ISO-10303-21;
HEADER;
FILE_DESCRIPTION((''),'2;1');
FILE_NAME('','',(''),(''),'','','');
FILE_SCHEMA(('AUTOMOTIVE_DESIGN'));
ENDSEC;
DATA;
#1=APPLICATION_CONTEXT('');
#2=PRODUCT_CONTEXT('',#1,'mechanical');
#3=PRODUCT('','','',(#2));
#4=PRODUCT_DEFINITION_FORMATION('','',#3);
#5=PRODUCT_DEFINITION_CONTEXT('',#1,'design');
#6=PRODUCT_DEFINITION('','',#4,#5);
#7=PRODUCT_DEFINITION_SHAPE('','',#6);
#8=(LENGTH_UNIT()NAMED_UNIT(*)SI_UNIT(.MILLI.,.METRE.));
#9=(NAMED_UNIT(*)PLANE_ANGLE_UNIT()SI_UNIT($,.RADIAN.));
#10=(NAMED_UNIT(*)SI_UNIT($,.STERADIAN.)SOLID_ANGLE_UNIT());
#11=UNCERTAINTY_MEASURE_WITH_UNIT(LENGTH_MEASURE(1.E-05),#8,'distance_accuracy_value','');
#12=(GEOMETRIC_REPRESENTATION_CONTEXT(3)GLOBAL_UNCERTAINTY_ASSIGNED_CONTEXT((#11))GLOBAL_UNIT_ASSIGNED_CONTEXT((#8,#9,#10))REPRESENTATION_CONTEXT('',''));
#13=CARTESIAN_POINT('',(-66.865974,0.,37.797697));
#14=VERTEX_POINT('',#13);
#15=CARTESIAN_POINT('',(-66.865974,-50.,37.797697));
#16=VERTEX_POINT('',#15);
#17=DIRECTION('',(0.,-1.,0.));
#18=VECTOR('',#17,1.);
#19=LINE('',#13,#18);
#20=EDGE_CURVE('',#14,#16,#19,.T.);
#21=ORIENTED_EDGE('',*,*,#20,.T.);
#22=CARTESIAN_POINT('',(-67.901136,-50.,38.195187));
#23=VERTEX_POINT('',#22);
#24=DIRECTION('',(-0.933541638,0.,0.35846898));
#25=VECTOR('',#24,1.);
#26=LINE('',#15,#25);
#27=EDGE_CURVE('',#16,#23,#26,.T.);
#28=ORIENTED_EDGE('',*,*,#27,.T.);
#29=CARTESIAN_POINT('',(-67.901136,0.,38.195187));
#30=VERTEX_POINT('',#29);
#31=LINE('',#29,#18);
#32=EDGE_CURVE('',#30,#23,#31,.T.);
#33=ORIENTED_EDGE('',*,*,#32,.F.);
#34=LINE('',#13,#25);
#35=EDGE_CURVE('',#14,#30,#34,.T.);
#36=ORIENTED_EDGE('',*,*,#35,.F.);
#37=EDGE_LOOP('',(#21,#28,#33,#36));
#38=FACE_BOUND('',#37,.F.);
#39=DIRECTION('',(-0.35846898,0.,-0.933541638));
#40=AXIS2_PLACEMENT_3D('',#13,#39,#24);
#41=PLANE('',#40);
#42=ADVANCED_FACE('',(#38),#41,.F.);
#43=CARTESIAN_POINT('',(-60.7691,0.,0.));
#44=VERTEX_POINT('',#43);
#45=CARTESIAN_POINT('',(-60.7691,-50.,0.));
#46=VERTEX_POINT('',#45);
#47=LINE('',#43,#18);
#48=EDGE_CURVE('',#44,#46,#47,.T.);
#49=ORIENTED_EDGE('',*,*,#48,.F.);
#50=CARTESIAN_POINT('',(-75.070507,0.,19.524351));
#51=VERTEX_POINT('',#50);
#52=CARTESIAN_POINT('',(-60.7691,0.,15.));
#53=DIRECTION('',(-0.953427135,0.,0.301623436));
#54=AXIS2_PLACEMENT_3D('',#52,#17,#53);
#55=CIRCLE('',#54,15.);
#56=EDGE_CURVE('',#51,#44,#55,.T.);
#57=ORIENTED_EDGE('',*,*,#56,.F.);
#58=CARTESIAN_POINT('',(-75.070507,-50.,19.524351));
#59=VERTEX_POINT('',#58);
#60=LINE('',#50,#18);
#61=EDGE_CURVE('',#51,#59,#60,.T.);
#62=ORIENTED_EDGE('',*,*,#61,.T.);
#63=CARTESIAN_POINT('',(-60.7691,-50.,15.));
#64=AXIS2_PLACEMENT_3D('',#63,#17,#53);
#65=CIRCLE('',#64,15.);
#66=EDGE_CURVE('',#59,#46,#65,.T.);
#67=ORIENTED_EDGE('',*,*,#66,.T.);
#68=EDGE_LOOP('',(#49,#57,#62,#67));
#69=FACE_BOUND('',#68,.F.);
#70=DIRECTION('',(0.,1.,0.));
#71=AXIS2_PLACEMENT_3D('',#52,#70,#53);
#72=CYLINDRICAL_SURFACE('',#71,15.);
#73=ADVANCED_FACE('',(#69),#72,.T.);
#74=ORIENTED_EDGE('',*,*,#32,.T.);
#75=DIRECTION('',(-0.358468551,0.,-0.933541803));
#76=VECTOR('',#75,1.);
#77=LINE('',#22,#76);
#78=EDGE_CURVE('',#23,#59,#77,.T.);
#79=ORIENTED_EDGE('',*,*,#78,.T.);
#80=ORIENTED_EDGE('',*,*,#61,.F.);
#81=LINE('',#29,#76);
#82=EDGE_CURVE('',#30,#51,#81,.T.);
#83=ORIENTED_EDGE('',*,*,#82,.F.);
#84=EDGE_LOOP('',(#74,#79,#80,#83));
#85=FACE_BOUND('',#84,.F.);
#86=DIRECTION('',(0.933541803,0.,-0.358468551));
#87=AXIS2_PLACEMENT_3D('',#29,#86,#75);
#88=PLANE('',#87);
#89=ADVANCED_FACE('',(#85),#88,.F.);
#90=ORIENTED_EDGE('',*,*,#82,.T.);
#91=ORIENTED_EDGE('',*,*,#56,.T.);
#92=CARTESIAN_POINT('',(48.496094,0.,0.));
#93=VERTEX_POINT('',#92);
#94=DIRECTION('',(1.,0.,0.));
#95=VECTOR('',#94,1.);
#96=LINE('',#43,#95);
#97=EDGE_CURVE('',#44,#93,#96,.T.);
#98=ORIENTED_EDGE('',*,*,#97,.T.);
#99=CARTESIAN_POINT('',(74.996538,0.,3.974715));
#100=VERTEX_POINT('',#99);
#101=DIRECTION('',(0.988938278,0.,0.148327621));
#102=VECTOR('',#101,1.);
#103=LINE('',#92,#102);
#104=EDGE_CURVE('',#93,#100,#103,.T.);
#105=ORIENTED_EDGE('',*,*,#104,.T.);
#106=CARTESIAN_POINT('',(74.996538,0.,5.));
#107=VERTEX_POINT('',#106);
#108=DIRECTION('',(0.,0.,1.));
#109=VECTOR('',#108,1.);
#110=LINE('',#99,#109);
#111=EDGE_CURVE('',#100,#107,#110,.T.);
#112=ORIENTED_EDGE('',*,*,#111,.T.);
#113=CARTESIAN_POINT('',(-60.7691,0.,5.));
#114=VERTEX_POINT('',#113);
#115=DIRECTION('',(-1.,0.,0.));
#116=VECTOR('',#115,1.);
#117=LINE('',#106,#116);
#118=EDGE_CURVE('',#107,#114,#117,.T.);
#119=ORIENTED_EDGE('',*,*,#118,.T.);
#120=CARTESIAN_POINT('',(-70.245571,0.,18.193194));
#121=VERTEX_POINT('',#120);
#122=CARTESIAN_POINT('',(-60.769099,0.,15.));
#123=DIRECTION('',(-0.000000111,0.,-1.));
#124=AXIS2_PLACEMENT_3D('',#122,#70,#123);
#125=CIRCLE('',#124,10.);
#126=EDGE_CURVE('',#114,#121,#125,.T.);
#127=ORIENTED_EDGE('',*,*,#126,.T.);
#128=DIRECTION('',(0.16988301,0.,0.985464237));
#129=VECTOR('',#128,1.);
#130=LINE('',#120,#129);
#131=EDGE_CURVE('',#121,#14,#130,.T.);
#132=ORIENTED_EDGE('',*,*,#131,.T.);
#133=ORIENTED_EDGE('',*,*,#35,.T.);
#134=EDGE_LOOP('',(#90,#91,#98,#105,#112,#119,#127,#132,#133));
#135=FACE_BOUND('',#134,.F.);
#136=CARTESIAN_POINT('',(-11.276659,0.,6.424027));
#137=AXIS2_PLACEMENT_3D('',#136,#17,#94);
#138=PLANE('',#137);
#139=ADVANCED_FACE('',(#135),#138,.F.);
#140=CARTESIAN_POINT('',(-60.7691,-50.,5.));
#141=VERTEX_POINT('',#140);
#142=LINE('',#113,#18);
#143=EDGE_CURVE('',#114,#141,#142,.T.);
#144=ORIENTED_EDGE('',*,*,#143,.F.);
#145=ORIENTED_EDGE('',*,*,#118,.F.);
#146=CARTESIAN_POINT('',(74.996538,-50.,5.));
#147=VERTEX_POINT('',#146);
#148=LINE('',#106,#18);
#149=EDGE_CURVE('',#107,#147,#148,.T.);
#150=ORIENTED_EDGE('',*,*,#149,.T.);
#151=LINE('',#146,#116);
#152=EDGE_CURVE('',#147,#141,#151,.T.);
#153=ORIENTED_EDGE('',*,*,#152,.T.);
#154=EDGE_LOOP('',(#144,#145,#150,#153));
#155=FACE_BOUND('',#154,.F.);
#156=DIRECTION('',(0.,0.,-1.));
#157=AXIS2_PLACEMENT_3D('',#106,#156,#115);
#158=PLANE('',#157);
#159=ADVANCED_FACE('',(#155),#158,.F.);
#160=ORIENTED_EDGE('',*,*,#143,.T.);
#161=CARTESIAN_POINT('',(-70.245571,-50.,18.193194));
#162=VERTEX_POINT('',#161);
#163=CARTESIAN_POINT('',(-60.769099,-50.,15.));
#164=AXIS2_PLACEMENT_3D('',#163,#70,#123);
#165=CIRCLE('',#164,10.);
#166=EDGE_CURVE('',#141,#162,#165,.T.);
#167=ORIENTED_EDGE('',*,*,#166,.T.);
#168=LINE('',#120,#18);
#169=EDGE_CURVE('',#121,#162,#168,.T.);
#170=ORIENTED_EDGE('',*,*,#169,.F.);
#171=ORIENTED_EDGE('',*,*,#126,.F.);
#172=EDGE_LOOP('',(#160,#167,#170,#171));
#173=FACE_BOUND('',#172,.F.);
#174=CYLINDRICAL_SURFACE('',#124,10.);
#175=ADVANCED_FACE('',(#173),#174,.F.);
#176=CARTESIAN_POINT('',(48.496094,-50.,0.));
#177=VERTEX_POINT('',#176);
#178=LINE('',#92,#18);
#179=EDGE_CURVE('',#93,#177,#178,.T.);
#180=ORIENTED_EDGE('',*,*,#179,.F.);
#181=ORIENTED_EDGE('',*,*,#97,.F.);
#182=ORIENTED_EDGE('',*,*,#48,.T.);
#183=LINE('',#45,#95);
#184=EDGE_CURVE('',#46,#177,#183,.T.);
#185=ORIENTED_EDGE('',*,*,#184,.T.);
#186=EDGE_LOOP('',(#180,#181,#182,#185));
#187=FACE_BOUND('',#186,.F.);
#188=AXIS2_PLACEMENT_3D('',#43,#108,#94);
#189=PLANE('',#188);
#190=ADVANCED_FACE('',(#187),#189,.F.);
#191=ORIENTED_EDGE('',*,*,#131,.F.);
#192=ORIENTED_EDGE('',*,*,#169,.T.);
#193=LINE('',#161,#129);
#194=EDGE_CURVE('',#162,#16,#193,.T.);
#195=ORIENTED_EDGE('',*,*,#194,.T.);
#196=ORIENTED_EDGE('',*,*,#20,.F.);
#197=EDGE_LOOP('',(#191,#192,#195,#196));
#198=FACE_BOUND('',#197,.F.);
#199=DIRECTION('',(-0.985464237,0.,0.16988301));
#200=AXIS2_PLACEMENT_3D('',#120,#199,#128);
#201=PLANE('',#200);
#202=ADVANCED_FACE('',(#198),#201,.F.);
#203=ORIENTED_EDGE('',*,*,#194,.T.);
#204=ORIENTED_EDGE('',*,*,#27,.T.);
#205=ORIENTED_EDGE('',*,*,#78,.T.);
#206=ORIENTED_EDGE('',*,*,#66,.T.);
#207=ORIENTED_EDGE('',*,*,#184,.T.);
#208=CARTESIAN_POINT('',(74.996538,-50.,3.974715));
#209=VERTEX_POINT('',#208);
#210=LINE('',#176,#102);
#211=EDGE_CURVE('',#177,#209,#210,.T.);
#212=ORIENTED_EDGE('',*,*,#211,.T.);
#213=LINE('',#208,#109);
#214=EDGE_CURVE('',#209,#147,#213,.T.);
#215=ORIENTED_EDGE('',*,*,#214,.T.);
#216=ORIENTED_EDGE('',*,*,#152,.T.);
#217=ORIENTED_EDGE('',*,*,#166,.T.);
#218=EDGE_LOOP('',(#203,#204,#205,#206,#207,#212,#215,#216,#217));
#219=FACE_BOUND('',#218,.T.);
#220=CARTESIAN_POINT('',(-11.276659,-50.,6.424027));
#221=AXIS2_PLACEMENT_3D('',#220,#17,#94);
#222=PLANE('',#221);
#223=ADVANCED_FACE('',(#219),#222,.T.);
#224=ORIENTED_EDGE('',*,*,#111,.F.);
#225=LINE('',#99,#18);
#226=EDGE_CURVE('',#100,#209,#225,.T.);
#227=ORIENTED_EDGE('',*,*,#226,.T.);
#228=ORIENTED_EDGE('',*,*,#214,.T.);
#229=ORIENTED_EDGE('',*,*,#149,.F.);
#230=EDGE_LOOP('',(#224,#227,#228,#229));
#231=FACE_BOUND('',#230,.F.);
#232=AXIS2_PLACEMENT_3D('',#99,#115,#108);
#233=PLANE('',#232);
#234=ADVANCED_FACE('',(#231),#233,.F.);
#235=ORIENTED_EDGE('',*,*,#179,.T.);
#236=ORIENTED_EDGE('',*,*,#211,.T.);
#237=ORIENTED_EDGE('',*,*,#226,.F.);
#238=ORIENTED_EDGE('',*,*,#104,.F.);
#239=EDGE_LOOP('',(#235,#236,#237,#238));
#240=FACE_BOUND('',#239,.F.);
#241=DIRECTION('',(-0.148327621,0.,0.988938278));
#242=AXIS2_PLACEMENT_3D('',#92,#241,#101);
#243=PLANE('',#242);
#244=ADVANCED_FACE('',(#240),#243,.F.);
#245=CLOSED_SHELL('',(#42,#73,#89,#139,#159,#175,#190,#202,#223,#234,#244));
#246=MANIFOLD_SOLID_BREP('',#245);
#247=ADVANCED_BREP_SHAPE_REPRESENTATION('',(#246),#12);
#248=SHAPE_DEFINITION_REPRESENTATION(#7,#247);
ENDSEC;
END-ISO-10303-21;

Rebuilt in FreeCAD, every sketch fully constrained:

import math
import FreeCAD as App
import Part
import Sketcher
Q = App.Units.Quantity

doc = App.newDocument("Part")
body = doc.addObject("PartDesign::Body", "Body")

sketch1 = doc.addObject("Sketcher::SketchObject", "Sketch")
body.addObject(sketch1)
sketch1.AttachmentSupport = (doc.XZ_Plane, [""])
sketch1.MapMode = "FlatFace"
sketch1.addGeometry(Part.LineSegment(App.Vector(74.996538, 5, 0), App.Vector(-60.7691, 5, 0)), False)
sketch1.addGeometry(Part.ArcOfCircle(Part.Circle(App.Vector(-60.769099, 15, 0), App.Vector(0, 0, 1), 10), math.radians(161.378233), math.radians(269.999994)), False)
sketch1.addGeometry(Part.LineSegment(App.Vector(-70.245571, 18.193194, 0), App.Vector(-66.865974, 37.797697, 0)), False)
sketch1.addGeometry(Part.LineSegment(App.Vector(-66.865974, 37.797697, 0), App.Vector(-67.901136, 38.195187, 0)), False)
sketch1.addGeometry(Part.LineSegment(App.Vector(-67.901136, 38.195187, 0), App.Vector(-75.070507, 19.524351, 0)), False)
sketch1.addGeometry(Part.ArcOfCircle(Part.Circle(App.Vector(-60.7691, 15, 0), App.Vector(0, 0, 1), 15), math.radians(162.444863), math.radians(270.000001)), False)
sketch1.addGeometry(Part.LineSegment(App.Vector(-60.7691, 0, 0), App.Vector(48.496094, 0, 0)), False)
sketch1.addGeometry(Part.LineSegment(App.Vector(48.496094, 0, 0), App.Vector(74.996538, 3.974715, 0)), False)
sketch1.addGeometry(Part.LineSegment(App.Vector(74.996538, 3.974715, 0), App.Vector(74.996538, 5, 0)), False)
sketch1.addConstraint(Sketcher.Constraint("Tangent", 0, 2, 1, 2))
sketch1.addConstraint(Sketcher.Constraint("Coincident", 1, 1, 2, 1))
sketch1.addConstraint(Sketcher.Constraint("Coincident", 2, 2, 3, 1))
sketch1.addConstraint(Sketcher.Constraint("Coincident", 3, 2, 4, 1))
sketch1.addConstraint(Sketcher.Constraint("Coincident", 4, 2, 5, 1))
sketch1.addConstraint(Sketcher.Constraint("Tangent", 5, 2, 6, 1))
sketch1.addConstraint(Sketcher.Constraint("Coincident", 6, 2, 7, 1))
sketch1.addConstraint(Sketcher.Constraint("Coincident", 7, 2, 8, 1))
sketch1.addConstraint(Sketcher.Constraint("Coincident", 8, 2, 0, 1))
sketch1.addConstraint(Sketcher.Constraint("Horizontal", 0))
sketch1.addConstraint(Sketcher.Constraint("Horizontal", 6))
sketch1.addConstraint(Sketcher.Constraint("Vertical", 8))
sketch1.addConstraint(Sketcher.Constraint("Coincident", 5, 3, 1, 3))
sketch1.addConstraint(Sketcher.Constraint("PointOnObject", 5, 2, -1))
sketch1.addConstraint(Sketcher.Constraint("Perpendicular", 3, 4))
sketch1.addConstraint(Sketcher.Constraint("Radius", 1, Q("10 mm")))
sketch1.addConstraint(Sketcher.Constraint("Radius", 5, Q("15 mm")))
sketch1.addConstraint(Sketcher.Constraint("Distance", 4, Q("20 mm")))
sketch1.addConstraint(Sketcher.Constraint("DistanceX", 0, 2, 0, 1, Q("135.765638 mm")))
sketch1.addConstraint(Sketcher.Constraint("DistanceX", 1, 3, -1, 1, Q("60.769099 mm")))
sketch1.addConstraint(Sketcher.Constraint("DistanceX", 6, 1, 6, 2, Q("109.265194 mm")))
sketch1.addConstraint(Sketcher.Constraint("DistanceY", 8, 1, 8, 2, Q("1.025285 mm")))
sketch1.addConstraint(Sketcher.Constraint("DistanceX", 1, 1, -1, 1, Q("70.245571 mm")))
sketch1.addConstraint(Sketcher.Constraint("DistanceY", -1, 1, 4, 2, Q("19.524351 mm")))
sketch1.addConstraint(Sketcher.Constraint("DistanceX", 3, 2, 2, 2, Q("1.035162 mm")))
sketch1.addConstraint(Sketcher.Constraint("DistanceY", 2, 2, 3, 2, Q("0.39749 mm")))
pad1 = doc.addObject("PartDesign::Pad", "Pad")
body.addObject(pad1)
pad1.Profile = sketch1
pad1.Length = 50

doc.recompute()
